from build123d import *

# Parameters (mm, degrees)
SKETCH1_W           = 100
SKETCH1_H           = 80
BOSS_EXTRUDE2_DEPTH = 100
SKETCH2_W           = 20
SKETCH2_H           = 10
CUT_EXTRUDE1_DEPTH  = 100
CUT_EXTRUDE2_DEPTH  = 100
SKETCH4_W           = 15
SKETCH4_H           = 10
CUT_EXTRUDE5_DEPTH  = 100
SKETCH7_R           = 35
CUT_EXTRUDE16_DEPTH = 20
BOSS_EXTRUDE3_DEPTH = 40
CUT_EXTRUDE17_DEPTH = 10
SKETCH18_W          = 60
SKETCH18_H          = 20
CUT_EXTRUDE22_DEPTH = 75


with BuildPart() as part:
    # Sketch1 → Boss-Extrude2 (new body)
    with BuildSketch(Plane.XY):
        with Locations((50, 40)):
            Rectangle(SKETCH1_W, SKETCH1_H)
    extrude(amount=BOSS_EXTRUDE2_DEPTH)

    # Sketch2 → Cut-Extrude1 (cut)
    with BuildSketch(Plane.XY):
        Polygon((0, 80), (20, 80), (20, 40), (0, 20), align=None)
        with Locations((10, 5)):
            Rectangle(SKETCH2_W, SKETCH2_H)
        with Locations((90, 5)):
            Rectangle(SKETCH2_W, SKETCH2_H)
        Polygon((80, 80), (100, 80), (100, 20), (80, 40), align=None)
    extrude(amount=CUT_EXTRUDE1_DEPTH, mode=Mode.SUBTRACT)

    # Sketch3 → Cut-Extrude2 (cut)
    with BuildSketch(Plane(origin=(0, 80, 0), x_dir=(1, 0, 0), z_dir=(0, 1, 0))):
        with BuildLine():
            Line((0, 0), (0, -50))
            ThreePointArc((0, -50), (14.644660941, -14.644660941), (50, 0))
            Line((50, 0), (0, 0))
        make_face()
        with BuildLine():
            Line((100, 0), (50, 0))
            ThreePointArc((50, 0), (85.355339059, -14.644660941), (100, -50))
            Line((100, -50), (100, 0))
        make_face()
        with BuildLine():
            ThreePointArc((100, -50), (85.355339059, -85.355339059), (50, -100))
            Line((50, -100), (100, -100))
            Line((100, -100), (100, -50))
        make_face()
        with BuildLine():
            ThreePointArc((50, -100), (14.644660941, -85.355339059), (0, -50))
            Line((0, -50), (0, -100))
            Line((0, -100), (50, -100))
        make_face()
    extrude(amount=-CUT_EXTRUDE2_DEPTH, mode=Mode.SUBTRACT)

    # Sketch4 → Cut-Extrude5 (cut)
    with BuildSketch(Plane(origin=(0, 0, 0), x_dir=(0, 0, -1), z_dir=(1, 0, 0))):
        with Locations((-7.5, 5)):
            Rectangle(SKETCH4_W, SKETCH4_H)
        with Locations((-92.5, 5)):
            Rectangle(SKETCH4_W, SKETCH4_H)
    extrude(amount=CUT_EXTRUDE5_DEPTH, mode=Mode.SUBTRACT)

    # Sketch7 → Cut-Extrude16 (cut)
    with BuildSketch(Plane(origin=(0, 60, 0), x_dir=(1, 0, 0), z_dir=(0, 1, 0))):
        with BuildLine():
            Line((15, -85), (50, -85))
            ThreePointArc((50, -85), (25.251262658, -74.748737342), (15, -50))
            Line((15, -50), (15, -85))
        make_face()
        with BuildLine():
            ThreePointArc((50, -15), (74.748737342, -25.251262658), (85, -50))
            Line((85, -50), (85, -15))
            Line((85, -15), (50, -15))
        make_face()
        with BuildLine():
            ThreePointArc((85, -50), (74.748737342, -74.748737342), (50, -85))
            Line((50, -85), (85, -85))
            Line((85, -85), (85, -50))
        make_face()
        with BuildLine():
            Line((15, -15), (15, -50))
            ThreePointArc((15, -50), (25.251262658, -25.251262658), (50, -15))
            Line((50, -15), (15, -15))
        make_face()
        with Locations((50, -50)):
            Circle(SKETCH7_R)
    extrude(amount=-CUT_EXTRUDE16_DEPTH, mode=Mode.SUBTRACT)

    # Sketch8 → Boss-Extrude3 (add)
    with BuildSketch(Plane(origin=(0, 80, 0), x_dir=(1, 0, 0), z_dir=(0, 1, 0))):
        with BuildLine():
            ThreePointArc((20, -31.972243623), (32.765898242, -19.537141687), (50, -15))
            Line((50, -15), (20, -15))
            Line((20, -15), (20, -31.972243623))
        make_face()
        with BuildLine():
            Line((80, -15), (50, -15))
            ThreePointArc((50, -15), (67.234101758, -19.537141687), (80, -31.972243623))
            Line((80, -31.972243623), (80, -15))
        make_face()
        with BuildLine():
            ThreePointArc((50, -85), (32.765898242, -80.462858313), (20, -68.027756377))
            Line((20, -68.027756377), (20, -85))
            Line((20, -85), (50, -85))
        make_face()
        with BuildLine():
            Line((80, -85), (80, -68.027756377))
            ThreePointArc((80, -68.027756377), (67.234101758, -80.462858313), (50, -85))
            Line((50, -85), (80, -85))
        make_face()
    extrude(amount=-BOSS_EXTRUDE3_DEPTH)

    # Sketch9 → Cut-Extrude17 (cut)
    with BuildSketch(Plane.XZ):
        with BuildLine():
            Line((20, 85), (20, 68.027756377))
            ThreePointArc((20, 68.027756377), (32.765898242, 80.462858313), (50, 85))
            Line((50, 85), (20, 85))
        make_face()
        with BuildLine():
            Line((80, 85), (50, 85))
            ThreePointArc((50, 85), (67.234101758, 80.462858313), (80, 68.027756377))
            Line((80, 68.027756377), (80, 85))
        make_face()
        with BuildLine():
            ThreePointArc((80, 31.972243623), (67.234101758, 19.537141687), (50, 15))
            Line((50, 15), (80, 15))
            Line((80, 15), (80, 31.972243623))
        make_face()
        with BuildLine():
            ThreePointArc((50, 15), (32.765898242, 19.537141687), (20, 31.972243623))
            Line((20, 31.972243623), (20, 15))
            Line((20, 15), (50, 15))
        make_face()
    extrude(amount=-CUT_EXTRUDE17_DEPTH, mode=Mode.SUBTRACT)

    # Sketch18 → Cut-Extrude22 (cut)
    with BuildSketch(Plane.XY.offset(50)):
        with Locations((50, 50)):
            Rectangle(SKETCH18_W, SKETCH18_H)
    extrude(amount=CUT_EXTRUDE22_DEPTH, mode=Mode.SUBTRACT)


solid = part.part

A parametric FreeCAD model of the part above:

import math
import FreeCAD as App
import Part
import Sketcher
Q = App.Units.Quantity

doc = App.newDocument("Part")
body = doc.addObject("PartDesign::Body", "Body")

# Sketch on XY plane
sketch1 = doc.addObject("Sketcher::SketchObject", "Sketch")
body.addObject(sketch1)
sketch1.AttachmentSupport = (doc.XY_Plane, [""])
sketch1.MapMode = "FlatFace"
sketch1.addGeometry(Part.LineSegment(App.Vector(0, 80, 0), App.Vector(0, 0, 0)), False)
sketch1.addGeometry(Part.LineSegment(App.Vector(0, 0, 0), App.Vector(100, 0, 0)), False)
sketch1.addGeometry(Part.LineSegment(App.Vector(100, 0, 0), App.Vector(100, 80, 0)), False)
sketch1.addGeometry(Part.LineSegment(App.Vector(100, 80, 0), App.Vector(0, 80, 0)), False)
sketch1.addConstraint(Sketcher.Constraint("Coincident", 0, 2, 1, 1))
sketch1.addConstraint(Sketcher.Constraint("Coincident", 1, 2, 2, 1))
sketch1.addConstraint(Sketcher.Constraint("Coincident", 2, 2, 3, 1))
sketch1.addConstraint(Sketcher.Constraint("Coincident", 3, 2, 0, 1))
sketch1.addConstraint(Sketcher.Constraint("Vertical", 0))
sketch1.addConstraint(Sketcher.Constraint("Horizontal", 1))
sketch1.addConstraint(Sketcher.Constraint("Vertical", 2))
sketch1.addConstraint(Sketcher.Constraint("Horizontal", 3))
sketch1.addConstraint(Sketcher.Constraint("Coincident", 0, 2, -1, 1))
sketch1.addConstraint(Sketcher.Constraint("DistanceX", 1, 1, 1, 2, Q("100 mm")))
sketch1.addConstraint(Sketcher.Constraint("DistanceY", 0, 2, 0, 1, Q("80 mm")))
pad1 = doc.addObject("PartDesign::Pad", "Pad")
body.addObject(pad1)
pad1.Profile = sketch1
pad1.Length = 100

# Sketch on XY plane
sketch2 = doc.addObject("Sketcher::SketchObject", "Sketch001")
body.addObject(sketch2)
sketch2.AttachmentSupport = (doc.XY_Plane, [""])
sketch2.MapMode = "FlatFace"
sketch2.addGeometry(Part.LineSegment(App.Vector(20, 80, 0), App.Vector(0, 80, 0)), False)
sketch2.addGeometry(Part.LineSegment(App.Vector(0, 80, 0), App.Vector(0, 20, 0)), False)
sketch2.addGeometry(Part.LineSegment(App.Vector(0, 20, 0), App.Vector(20, 40, 0)), False)
sketch2.addGeometry(Part.LineSegment(App.Vector(20, 40, 0), App.Vector(20, 80, 0)), False)
sketch2.addGeometry(Part.LineSegment(App.Vector(0, 10, 0), App.Vector(0, 0, 0)), False)
sketch2.addGeometry(Part.LineSegment(App.Vector(0, 0, 0), App.Vector(20, 0, 0)), False)
sketch2.addGeometry(Part.LineSegment(App.Vector(20, 0, 0), App.Vector(20, 10, 0)), False)
sketch2.addGeometry(Part.LineSegment(App.Vector(20, 10, 0), App.Vector(0, 10, 0)), False)
sketch2.addGeometry(Part.LineSegment(App.Vector(80, 10, 0), App.Vector(80, 0, 0)), False)
sketch2.addGeometry(Part.LineSegment(App.Vector(80, 0, 0), App.Vector(100, 0, 0)), False)
sketch2.addGeometry(Part.LineSegment(App.Vector(100, 0, 0), App.Vector(100, 10, 0)), False)
sketch2.addGeometry(Part.LineSegment(App.Vector(100, 10, 0), App.Vector(80, 10, 0)), False)
sketch2.addGeometry(Part.LineSegment(App.Vector(100, 80, 0), App.Vector(80, 80, 0)), False)
sketch2.addGeometry(Part.LineSegment(App.Vector(80, 80, 0), App.Vector(80, 40, 0)), False)
sketch2.addGeometry(Part.LineSegment(App.Vector(80, 40, 0), App.Vector(100, 20, 0)), False)
sketch2.addGeometry(Part.LineSegment(App.Vector(100, 20, 0), App.Vector(100, 80, 0)), False)
sketch2.addConstraint(Sketcher.Constraint("Coincident", 0, 2, 1, 1))
sketch2.addConstraint(Sketcher.Constraint("Coincident", 1, 2, 2, 1))
sketch2.addConstraint(Sketcher.Constraint("Coincident", 2, 2, 3, 1))
sketch2.addConstraint(Sketcher.Constraint("Coincident", 3, 2, 0, 1))
sketch2.addConstraint(Sketcher.Constraint("Coincident", 4, 2, 5, 1))
sketch2.addConstraint(Sketcher.Constraint("Coincident", 5, 2, 6, 1))
sketch2.addConstraint(Sketcher.Constraint("Coincident", 6, 2, 7, 1))
sketch2.addConstraint(Sketcher.Constraint("Coincident", 7, 2, 4, 1))
sketch2.addConstraint(Sketcher.Constraint("Coincident", 8, 2, 9, 1))
sketch2.addConstraint(Sketcher.Constraint("Coincident", 9, 2, 10, 1))
sketch2.addConstraint(Sketcher.Constraint("Coincident", 10, 2, 11, 1))
sketch2.addConstraint(Sketcher.Constraint("Coincident", 11, 2, 8, 1))
sketch2.addConstraint(Sketcher.Constraint("Coincident", 12, 2, 13, 1))
sketch2.addConstraint(Sketcher.Constraint("Coincident", 13, 2, 14, 1))
sketch2.addConstraint(Sketcher.Constraint("Coincident", 14, 2, 15, 1))
sketch2.addConstraint(Sketcher.Constraint("Coincident", 15, 2, 12, 1))
sketch2.addConstraint(Sketcher.Constraint("Horizontal", 0))
sketch2.addConstraint(Sketcher.Constraint("Vertical", 1))
sketch2.addConstraint(Sketcher.Constraint("Vertical", 3))
sketch2.addConstraint(Sketcher.Constraint("Vertical", 4))
sketch2.addConstraint(Sketcher.Constraint("Horizontal", 5))
sketch2.addConstraint(Sketcher.Constraint("Vertical", 6))
sketch2.addConstraint(Sketcher.Constraint("Horizontal", 7))
sketch2.addConstraint(Sketcher.Constraint("Vertical", 8))
sketch2.addConstraint(Sketcher.Constraint("Horizontal", 9))
sketch2.addConstraint(Sketcher.Constraint("Vertical", 10))
sketch2.addConstraint(Sketcher.Constraint("Horizontal", 11))
sketch2.addConstraint(Sketcher.Constraint("Horizontal", 12))
sketch2.addConstraint(Sketcher.Constraint("Vertical", 13))
sketch2.addConstraint(Sketcher.Constraint("Vertical", 15))
sketch2.addConstraint(Sketcher.Constraint("Coincident", 4, 2, -1, 1))
sketch2.addConstraint(Sketcher.Constraint("PointOnObject", 0, 2, -2))
sketch2.addConstraint(Sketcher.Constraint("PointOnObject", 8, 2, -1))
sketch2.addConstraint(Sketcher.Constraint("Perpendicular", 2, 14))
sketch2.addConstraint(Sketcher.Constraint("Horizontal", 7, 2, 10, 2))
sketch2.addConstraint(Sketcher.Constraint("Horizontal", 3, 2, 12, 2))
sketch2.addConstraint(Sketcher.Constraint("Horizontal", 2, 2, 13, 2))
sketch2.addConstraint(Sketcher.Constraint("Horizontal", 1, 2, 14, 2))
sketch2.addConstraint(Sketcher.Constraint("Vertical", 3, 2, 5, 2))
sketch2.addConstraint(Sketcher.Constraint("Vertical", 11, 2, 12, 2))
sketch2.addConstraint(Sketcher.Constraint("Vertical", 10, 2, 14, 2))
sketch2.addConstraint(Sketcher.Constraint("Equal", 7, 9))
sketch2.addConstraint(Sketcher.Constraint("DistanceX", 0, 2, 0, 1, Q("20 mm")))
sketch2.addConstraint(Sketcher.Constraint("DistanceY", 1, 2, 1, 1, Q("60 mm")))
sketch2.addConstraint(Sketcher.Constraint("DistanceY", 4, 2, 4, 1, Q("10 mm")))
sketch2.addConstraint(Sketcher.Constraint("DistanceY", -1, 1, 0, 2, Q("80 mm")))
sketch2.addConstraint(Sketcher.Constraint("DistanceX", -1, 1, 8, 2, Q("80 mm")))
pocket1 = doc.addObject("PartDesign::Pocket", "Pocket")
body.addObject(pocket1)
pocket1.Profile = sketch2
pocket1.Length = 100
pocket1.Reversed = True

# Sketch on XZ plane
sketch3 = doc.addObject("Sketcher::SketchObject", "Sketch002")
body.addObject(sketch3)
sketch3.AttachmentSupport = (doc.XZ_Plane, [""])
sketch3.MapMode = "FlatFace"
sketch3.AttachmentOffset = App.Placement(App.Vector(0, 0, -80), App.Rotation())
sketch3.addGeometry(Part.LineSegment(App.Vector(0, 0, 0), App.Vector(0, 50, 0)), False)
sketch3.addGeometry(Part.ArcOfCircle(Part.Circle(App.Vector(50, 50, 0), App.Vector(0, 0, 1), 50), math.radians(-180), math.radians(-90)), False)
sketch3.addGeometry(Part.LineSegment(App.Vector(50, 0, 0), App.Vector(0, 0, 0)), False)
sketch3.addGeometry(Part.LineSegment(App.Vector(100, 0, 0), App.Vector(50, 0, 0)), False)
sketch3.addGeometry(Part.ArcOfCircle(Part.Circle(App.Vector(50, 50, 0), App.Vector(0, 0, 1), 50), math.radians(-90), math.radians(0)), False)
sketch3.addGeometry(Part.LineSegment(App.Vector(100, 50, 0), App.Vector(100, 0, 0)), False)
sketch3.addGeometry(Part.ArcOfCircle(Part.Circle(App.Vector(50, 50, 0), App.Vector(0, 0, 1), 50), math.radians(0), math.radians(90)), False)
sketch3.addGeometry(Part.LineSegment(App.Vector(50, 100, 0), App.Vector(100, 100, 0)), False)
sketch3.addGeometry(Part.LineSegment(App.Vector(100, 100, 0), App.Vector(100, 50, 0)), False)
sketch3.addGeometry(Part.ArcOfCircle(Part.Circle(App.Vector(50, 50, 0), App.Vector(0, 0, 1), 50), math.radians(90), math.radians(180)), False)
sketch3.addGeometry(Part.LineSegment(App.Vector(0, 50, 0), App.Vector(0, 100, 0)), False)
sketch3.addGeometry(Part.LineSegment(App.Vector(0, 100, 0), App.Vector(50, 100, 0)), False)
sketch3.addConstraint(Sketcher.Constraint("Tangent", 0, 2, 1, 1))
sketch3.addConstraint(Sketcher.Constraint("Tangent", 1, 2, 2, 1))
sketch3.addConstraint(Sketcher.Constraint("Coincident", 2, 2, 0, 1))
sketch3.addConstraint(Sketcher.Constraint("Tangent", 3, 2, 4, 1))
sketch3.addConstraint(Sketcher.Constraint("Tangent", 4, 2, 5, 1))
sketch3.addConstraint(Sketcher.Constraint("Coincident", 5, 2, 3, 1))
sketch3.addConstraint(Sketcher.Constraint("Tangent", 6, 2, 7, 1))
sketch3.addConstraint(Sketcher.Constraint("Coincident", 7, 2, 8, 1))
sketch3.addConstraint(Sketcher.Constraint("Tangent", 8, 2, 6, 1))
sketch3.addConstraint(Sketcher.Constraint("Tangent", 9, 2, 10, 1))
sketch3.addConstraint(Sketcher.Constraint("Coincident", 10, 2, 11, 1))
sketch3.addConstraint(Sketcher.Constraint("Tangent", 11, 2, 9, 1))
sketch3.addConstraint(Sketcher.Constraint("Vertical", 0))
sketch3.addConstraint(Sketcher.Constraint("Horizontal", 2))
sketch3.addConstraint(Sketcher.Constraint("Horizontal", 3))
sketch3.addConstraint(Sketcher.Constraint("Vertical", 5))
sketch3.addConstraint(Sketcher.Constraint("Horizontal", 7))
sketch3.addConstraint(Sketcher.Constraint("Vertical", 8))
sketch3.addConstraint(Sketcher.Constraint("Vertical", 10))
sketch3.addConstraint(Sketcher.Constraint("Horizontal", 11))
sketch3.addConstraint(Sketcher.Constraint("Coincident", 2, 2, -1, 1))
sketch3.addConstraint(Sketcher.Constraint("Coincident", 4, 3, 1, 3))
sketch3.addConstraint(Sketcher.Constraint("Coincident", 6, 3, 1, 3))
sketch3.addConstraint(Sketcher.Constraint("Coincident", 9, 3, 1, 3))
sketch3.addConstraint(Sketcher.Constraint("Equal", 1, 4))
sketch3.addConstraint(Sketcher.Constraint("Equal", 4, 6))
sketch3.addConstraint(Sketcher.Constraint("Equal", 6, 9))
sketch3.addConstraint(Sketcher.Constraint("Radius", 1, Q("50 mm")))
pocket2 = doc.addObject("PartDesign::Pocket", "Pocket001")
body.addObject(pocket2)
pocket2.Profile = sketch3
pocket2.Length = 100
pocket2.Reversed = True

# Sketch on YZ plane
sketch4 = doc.addObject("Sketcher::SketchObject", "Sketch003")
body.addObject(sketch4)
sketch4.AttachmentSupport = (doc.YZ_Plane, [""])
sketch4.MapMode = "FlatFace"
sketch4.addGeometry(Part.LineSegment(App.Vector(10, 15, 0), App.Vector(0, 15, 0)), False)
sketch4.addGeometry(Part.LineSegment(App.Vector(0, 15, 0), App.Vector(0, 0, 0)), False)
sketch4.addGeometry(Part.LineSegment(App.Vector(0, 0, 0), App.Vector(10, 0, 0)), False)
sketch4.addGeometry(Part.LineSegment(App.Vector(10, 0, 0), App.Vector(10, 15, 0)), False)
sketch4.addGeometry(Part.LineSegment(App.Vector(10, 100, 0), App.Vector(0, 100, 0)), False)
sketch4.addGeometry(Part.LineSegment(App.Vector(0, 100, 0), App.Vector(0, 85, 0)), False)
sketch4.addGeometry(Part.LineSegment(App.Vector(0, 85, 0), App.Vector(10, 85, 0)), False)
sketch4.addGeometry(Part.LineSegment(App.Vector(10, 85, 0), App.Vector(10, 100, 0)), False)
sketch4.addConstraint(Sketcher.Constraint("Coincident", 0, 2, 1, 1))
sketch4.addConstraint(Sketcher.Constraint("Coincident", 1, 2, 2, 1))
sketch4.addConstraint(Sketcher.Constraint("Coincident", 2, 2, 3, 1))
sketch4.addConstraint(Sketcher.Constraint("Coincident", 3, 2, 0, 1))
sketch4.addConstraint(Sketcher.Constraint("Coincident", 4, 2, 5, 1))
sketch4.addConstraint(Sketcher.Constraint("Coincident", 5, 2, 6, 1))
sketch4.addConstraint(Sketcher.Constraint("Coincident", 6, 2, 7, 1))
sketch4.addConstraint(Sketcher.Constraint("Coincident", 7, 2, 4, 1))
sketch4.addConstraint(Sketcher.Constraint("Horizontal", 0))
sketch4.addConstraint(Sketcher.Constraint("Vertical", 1))
sketch4.addConstraint(Sketcher.Constraint("Horizontal", 2))
sketch4.addConstraint(Sketcher.Constraint("Vertical", 3))
sketch4.addConstraint(Sketcher.Constraint("Horizontal", 4))
sketch4.addConstraint(Sketcher.Constraint("Vertical", 5))
sketch4.addConstraint(Sketcher.Constraint("Horizontal", 6))
sketch4.addConstraint(Sketcher.Constraint("Vertical", 7))
sketch4.addConstraint(Sketcher.Constraint("Coincident", 1, 2, -1, 1))
sketch4.addConstraint(Sketcher.Constraint("PointOnObject", 4, 2, -2))
sketch4.addConstraint(Sketcher.Constraint("Vertical", 3, 2, 6, 2))
sketch4.addConstraint(Sketcher.Constraint("Equal", 3, 5))
sketch4.addConstraint(Sketcher.Constraint("DistanceX", 0, 2, 0, 1, Q("10 mm")))
sketch4.addConstraint(Sketcher.Constraint("DistanceY", 1, 2, 1, 1, Q("15 mm")))
sketch4.addConstraint(Sketcher.Constraint("DistanceY", -1, 1, 4, 2, Q("100 mm")))
pocket3 = doc.addObject("PartDesign::Pocket", "Pocket002")
body.addObject(pocket3)
pocket3.Profile = sketch4
pocket3.Length = 100
pocket3.Reversed = True

# Sketch on XZ plane
sketch5 = doc.addObject("Sketcher::SketchObject", "Sketch004")
body.addObject(sketch5)
sketch5.AttachmentSupport = (doc.XZ_Plane, [""])
sketch5.MapMode = "FlatFace"
sketch5.AttachmentOffset = App.Placement(App.Vector(0, 0, -60), App.Rotation())
sketch5.addGeometry(Part.LineSegment(App.Vector(15, 85, 0), App.Vector(85, 85, 0)), False)
sketch5.addGeometry(Part.LineSegment(App.Vector(85, 85, 0), App.Vector(85, 15, 0)), False)
sketch5.addGeometry(Part.LineSegment(App.Vector(85, 15, 0), App.Vector(15, 15, 0)), False)
sketch5.addGeometry(Part.LineSegment(App.Vector(15, 15, 0), App.Vector(15, 85, 0)), False)
sketch5.addConstraint(Sketcher.Constraint("Coincident", 0, 2, 1, 1))
sketch5.addConstraint(Sketcher.Constraint("Coincident", 1, 2, 2, 1))
sketch5.addConstraint(Sketcher.Constraint("Coincident", 2, 2, 3, 1))
sketch5.addConstraint(Sketcher.Constraint("Coincident", 3, 2, 0, 1))
sketch5.addConstraint(Sketcher.Constraint("Horizontal", 0))
sketch5.addConstraint(Sketcher.Constraint("Vertical", 1))
sketch5.addConstraint(Sketcher.Constraint("Horizontal", 2))
sketch5.addConstraint(Sketcher.Constraint("Vertical", 3))
sketch5.addConstraint(Sketcher.Constraint("Equal", 2, 1))
sketch5.addConstraint(Sketcher.Constraint("DistanceX", 0, 1, 0, 2, Q("70 mm")))
sketch5.addConstraint(Sketcher.Constraint("DistanceX", -1, 1, 0, 2, Q("85 mm")))
sketch5.addConstraint(Sketcher.Constraint("DistanceY", -1, 1, 0, 2, Q("85 mm")))
pocket4 = doc.addObject("PartDesign::Pocket", "Pocket003")
body.addObject(pocket4)
pocket4.Profile = sketch5
pocket4.Length = 20
pocket4.Reversed = True

# Sketch on XZ plane
sketch6 = doc.addObject("Sketcher::SketchObject", "Sketch005")
body.addObject(sketch6)
sketch6.AttachmentSupport = (doc.XZ_Plane, [""])
sketch6.MapMode = "FlatFace"
sketch6.AttachmentOffset = App.Placement(App.Vector(0, 0, -80), App.Rotation())
sketch6.addGeometry(Part.ArcOfCircle(Part.Circle(App.Vector(50, 50, 0), App.Vector(0, 0, 1), 35), math.radians(-149), math.radians(-90)), False)
sketch6.addGeometry(Part.LineSegment(App.Vector(50, 15, 0), App.Vector(20, 15, 0)), False)
sketch6.addGeometry(Part.LineSegment(App.Vector(20, 15, 0), App.Vector(20, 32, 0)), False)
sketch6.addGeometry(Part.LineSegment(App.Vector(80, 15, 0), App.Vector(50, 15, 0)), False)
sketch6.addGeometry(Part.ArcOfCircle(Part.Circle(App.Vector(50, 50, 0), App.Vector(0, 0, 1), 35), math.radians(-90), math.radians(-31)), False)
sketch6.addGeometry(Part.LineSegment(App.Vector(80, 32, 0), App.Vector(80, 15, 0)), False)
sketch6.addGeometry(Part.ArcOfCircle(Part.Circle(App.Vector(50, 50, 0), App.Vector(0, 0, 1), 35), math.radians(90), math.radians(149)), False)
sketch6.addGeometry(Part.LineSegment(App.Vector(20, 68, 0), App.Vector(20, 85, 0)), False)
sketch6.addGeometry(Part.LineSegment(App.Vector(20, 85, 0), App.Vector(50, 85, 0)), False)
sketch6.addGeometry(Part.LineSegment(App.Vector(80, 85, 0), App.Vector(80, 68, 0)), False)
sketch6.addGeometry(Part.ArcOfCircle(Part.Circle(App.Vector(50, 50, 0), App.Vector(0, 0, 1), 35), math.radians(31), math.radians(90)), False)
sketch6.addGeometry(Part.LineSegment(App.Vector(50, 85, 0), App.Vector(80, 85, 0)), False)
sketch6.addConstraint(Sketcher.Constraint("Tangent", 0, 2, 1, 1))
sketch6.addConstraint(Sketcher.Constraint("Coincident", 1, 2, 2, 1))
sketch6.addConstraint(Sketcher.Constraint("Coincident", 2, 2, 0, 1))
sketch6.addConstraint(Sketcher.Constraint("Tangent", 3, 2, 4, 1))
sketch6.addConstraint(Sketcher.Constraint("Coincident", 4, 2, 5, 1))
sketch6.addConstraint(Sketcher.Constraint("Coincident", 5, 2, 3, 1))
sketch6.addConstraint(Sketcher.Constraint("Coincident", 6, 2, 7, 1))
sketch6.addConstraint(Sketcher.Constraint("Coincident", 7, 2, 8, 1))
sketch6.addConstraint(Sketcher.Constraint("Tangent", 8, 2, 6, 1))
sketch6.addConstraint(Sketcher.Constraint("Coincident", 9, 2, 10, 1))
sketch6.addConstraint(Sketcher.Constraint("Tangent", 10, 2, 11, 1))
sketch6.addConstraint(Sketcher.Constraint("Coincident", 11, 2, 9, 1))
sketch6.addConstraint(Sketcher.Constraint("Horizontal", 1))
sketch6.addConstraint(Sketcher.Constraint("Vertical", 2))
sketch6.addConstraint(Sketcher.Constraint("Horizontal", 3))
sketch6.addConstraint(Sketcher.Constraint("Vertical", 5))
sketch6.addConstraint(Sketcher.Constraint("Vertical", 7))
sketch6.addConstraint(Sketcher.Constraint("Horizontal", 8))
sketch6.addConstraint(Sketcher.Constraint("Vertical", 9))
sketch6.addConstraint(Sketcher.Constraint("Horizontal", 11))
sketch6.addConstraint(Sketcher.Constraint("Coincident", 4, 3, 0, 3))
sketch6.addConstraint(Sketcher.Constraint("Coincident", 6, 3, 0, 3))
sketch6.addConstraint(Sketcher.Constraint("Coincident", 10, 3, 0, 3))
sketch6.addConstraint(Sketcher.Constraint("Equal", 0, 4))
sketch6.addConstraint(Sketcher.Constraint("Equal", 4, 6))
sketch6.addConstraint(Sketcher.Constraint("Equal", 6, 10))
sketch6.addConstraint(Sketcher.Constraint("Horizontal", 2, 2, 4, 2))
sketch6.addConstraint(Sketcher.Constraint("Horizontal", 6, 2, 9, 2))
sketch6.addConstraint(Sketcher.Constraint("Vertical", 2, 2, 6, 2))
sketch6.addConstraint(Sketcher.Constraint("Radius", 0, Q("35 mm")))
sketch6.addConstraint(Sketcher.Constraint("DistanceX", 1, 2, 1, 1, Q("30 mm")))
sketch6.addConstraint(Sketcher.Constraint("DistanceX", -1, 1, 0, 3, Q("50 mm")))
sketch6.addConstraint(Sketcher.Constraint("DistanceY", -1, 1, 0, 3, Q("50 mm")))
pad2 = doc.addObject("PartDesign::Pad", "Pad001")
body.addObject(pad2)
pad2.Profile = sketch6
pad2.Length = 40

# Sketch on XZ plane
sketch7 = doc.addObject("Sketcher::SketchObject", "Sketch006")
body.addObject(sketch7)
sketch7.AttachmentSupport = (doc.XZ_Plane, [""])
sketch7.MapMode = "FlatFace"
sketch7.addGeometry(Part.LineSegment(App.Vector(20, 85, 0), App.Vector(20, 68, 0)), False)
sketch7.addGeometry(Part.ArcOfCircle(Part.Circle(App.Vector(50, 50, 0), App.Vector(0, 0, 1), 35), math.radians(90), math.radians(149)), False)
sketch7.addGeometry(Part.LineSegment(App.Vector(50, 85, 0), App.Vector(20, 85, 0)), False)
sketch7.addGeometry(Part.LineSegment(App.Vector(80, 85, 0), App.Vector(50, 85, 0)), False)
sketch7.addGeometry(Part.ArcOfCircle(Part.Circle(App.Vector(50, 50, 0), App.Vector(0, 0, 1), 35), math.radians(31), math.radians(90)), False)
sketch7.addGeometry(Part.LineSegment(App.Vector(80, 68, 0), App.Vector(80, 85, 0)), False)
sketch7.addGeometry(Part.ArcOfCircle(Part.Circle(App.Vector(50, 50, 0), App.Vector(0, 0, 1), 35), math.radians(-90), math.radians(-31)), False)
sketch7.addGeometry(Part.LineSegment(App.Vector(50, 15, 0), App.Vector(80, 15, 0)), False)
sketch7.addGeometry(Part.LineSegment(App.Vector(80, 15, 0), App.Vector(80, 32, 0)), False)
sketch7.addGeometry(Part.ArcOfCircle(Part.Circle(App.Vector(50, 50, 0), App.Vector(0, 0, 1), 35), math.radians(-149), math.radians(-90)), False)
sketch7.addGeometry(Part.LineSegment(App.Vector(20, 32, 0), App.Vector(20, 15, 0)), False)
sketch7.addGeometry(Part.LineSegment(App.Vector(20, 15, 0), App.Vector(50, 15, 0)), False)
sketch7.addConstraint(Sketcher.Constraint("Coincident", 0, 2, 1, 2))
sketch7.addConstraint(Sketcher.Constraint("Tangent", 1, 1, 2, 1))
sketch7.addConstraint(Sketcher.Constraint("Coincident", 2, 2, 0, 1))
sketch7.addConstraint(Sketcher.Constraint("Tangent", 3, 2, 4, 2))
sketch7.addConstraint(Sketcher.Constraint("Coincident", 4, 1, 5, 1))
sketch7.addConstraint(Sketcher.Constraint("Coincident", 5, 2, 3, 1))
sketch7.addConstraint(Sketcher.Constraint("Tangent", 6, 1, 7, 1))
sketch7.addConstraint(Sketcher.Constraint("Coincident", 7, 2, 8, 1))
sketch7.addConstraint(Sketcher.Constraint("Coincident", 8, 2, 6, 2))
sketch7.addConstraint(Sketcher.Constraint("Coincident", 9, 1, 10, 1))
sketch7.addConstraint(Sketcher.Constraint("Coincident", 10, 2, 11, 1))
sketch7.addConstraint(Sketcher.Constraint("Tangent", 11, 2, 9, 2))
sketch7.addConstraint(Sketcher.Constraint("Vertical", 0))
sketch7.addConstraint(Sketcher.Constraint("Horizontal", 2))
sketch7.addConstraint(Sketcher.Constraint("Horizontal", 3))
sketch7.addConstraint(Sketcher.Constraint("Vertical", 5))
sketch7.addConstraint(Sketcher.Constraint("Horizontal", 7))
sketch7.addConstraint(Sketcher.Constraint("Vertical", 8))
sketch7.addConstraint(Sketcher.Constraint("Vertical", 10))
sketch7.addConstraint(Sketcher.Constraint("Horizontal", 11))
sketch7.addConstraint(Sketcher.Constraint("Coincident", 4, 3, 1, 3))
sketch7.addConstraint(Sketcher.Constraint("Coincident", 6, 3, 1, 3))
sketch7.addConstraint(Sketcher.Constraint("Coincident", 9, 3, 1, 3))
sketch7.addConstraint(Sketcher.Constraint("Equal", 1, 4))
sketch7.addConstraint(Sketcher.Constraint("Equal", 4, 6))
sketch7.addConstraint(Sketcher.Constraint("Equal", 6, 9))
sketch7.addConstraint(Sketcher.Constraint("Horizontal", 0, 2, 4, 1))
sketch7.addConstraint(Sketcher.Constraint("Horizontal", 8, 2, 9, 1))
sketch7.addConstraint(Sketcher.Constraint("Vertical", 5, 2, 7, 2))
sketch7.addConstraint(Sketcher.Constraint("Radius", 1, Q("35 mm")))
sketch7.addConstraint(Sketcher.Constraint("DistanceX", 2, 2, 2, 1, Q("30 mm")))
sketch7.addConstraint(Sketcher.Constraint("DistanceX", -1, 1, 1, 3, Q("50 mm")))
sketch7.addConstraint(Sketcher.Constraint("DistanceY", -1, 1, 1, 3, Q("50 mm")))
pocket5 = doc.addObject("PartDesign::Pocket", "Pocket004")
body.addObject(pocket5)
pocket5.Profile = sketch7
pocket5.Length = 10

# Sketch on XY plane
sketch8 = doc.addObject("Sketcher::SketchObject", "Sketch007")
body.addObject(sketch8)
sketch8.AttachmentSupport = (doc.XY_Plane, [""])
sketch8.MapMode = "FlatFace"
sketch8.AttachmentOffset = App.Placement(App.Vector(0, 0, 50), App.Rotation())
sketch8.addGeometry(Part.LineSegment(App.Vector(20, 60, 0), App.Vector(20, 40, 0)), False)
sketch8.addGeometry(Part.LineSegment(App.Vector(20, 40, 0), App.Vector(80, 40, 0)), False)
sketch8.addGeometry(Part.LineSegment(App.Vector(80, 40, 0), App.Vector(80, 60, 0)), False)
sketch8.addGeometry(Part.LineSegment(App.Vector(80, 60, 0), App.Vector(20, 60, 0)), False)
sketch8.addConstraint(Sketcher.Constraint("Coincident", 0, 2, 1, 1))
sketch8.addConstraint(Sketcher.Constraint("Coincident", 1, 2, 2, 1))
sketch8.addConstraint(Sketcher.Constraint("Coincident", 2, 2, 3, 1))
sketch8.addConstraint(Sketcher.Constraint("Coincident", 3, 2, 0, 1))
sketch8.addConstraint(Sketcher.Constraint("Vertical", 0))
sketch8.addConstraint(Sketcher.Constraint("Horizontal", 1))
sketch8.addConstraint(Sketcher.Constraint("Vertical", 2))
sketch8.addConstraint(Sketcher.Constraint("Horizontal", 3))
sketch8.addConstraint(Sketcher.Constraint("DistanceX", 1, 1, 1, 2, Q("60 mm")))
sketch8.addConstraint(Sketcher.Constraint("DistanceY", 0, 2, 0, 1, Q("20 mm")))
sketch8.addConstraint(Sketcher.Constraint("DistanceX", -1, 1, 0, 2, Q("20 mm")))
sketch8.addConstraint(Sketcher.Constraint("DistanceY", -1, 1, 0, 2, Q("40 mm")))
pocket6 = doc.addObject("PartDesign::Pocket", "Pocket005")
body.addObject(pocket6)
pocket6.Profile = sketch8
pocket6.Length = 75
pocket6.Reversed = True

doc.recompute()
